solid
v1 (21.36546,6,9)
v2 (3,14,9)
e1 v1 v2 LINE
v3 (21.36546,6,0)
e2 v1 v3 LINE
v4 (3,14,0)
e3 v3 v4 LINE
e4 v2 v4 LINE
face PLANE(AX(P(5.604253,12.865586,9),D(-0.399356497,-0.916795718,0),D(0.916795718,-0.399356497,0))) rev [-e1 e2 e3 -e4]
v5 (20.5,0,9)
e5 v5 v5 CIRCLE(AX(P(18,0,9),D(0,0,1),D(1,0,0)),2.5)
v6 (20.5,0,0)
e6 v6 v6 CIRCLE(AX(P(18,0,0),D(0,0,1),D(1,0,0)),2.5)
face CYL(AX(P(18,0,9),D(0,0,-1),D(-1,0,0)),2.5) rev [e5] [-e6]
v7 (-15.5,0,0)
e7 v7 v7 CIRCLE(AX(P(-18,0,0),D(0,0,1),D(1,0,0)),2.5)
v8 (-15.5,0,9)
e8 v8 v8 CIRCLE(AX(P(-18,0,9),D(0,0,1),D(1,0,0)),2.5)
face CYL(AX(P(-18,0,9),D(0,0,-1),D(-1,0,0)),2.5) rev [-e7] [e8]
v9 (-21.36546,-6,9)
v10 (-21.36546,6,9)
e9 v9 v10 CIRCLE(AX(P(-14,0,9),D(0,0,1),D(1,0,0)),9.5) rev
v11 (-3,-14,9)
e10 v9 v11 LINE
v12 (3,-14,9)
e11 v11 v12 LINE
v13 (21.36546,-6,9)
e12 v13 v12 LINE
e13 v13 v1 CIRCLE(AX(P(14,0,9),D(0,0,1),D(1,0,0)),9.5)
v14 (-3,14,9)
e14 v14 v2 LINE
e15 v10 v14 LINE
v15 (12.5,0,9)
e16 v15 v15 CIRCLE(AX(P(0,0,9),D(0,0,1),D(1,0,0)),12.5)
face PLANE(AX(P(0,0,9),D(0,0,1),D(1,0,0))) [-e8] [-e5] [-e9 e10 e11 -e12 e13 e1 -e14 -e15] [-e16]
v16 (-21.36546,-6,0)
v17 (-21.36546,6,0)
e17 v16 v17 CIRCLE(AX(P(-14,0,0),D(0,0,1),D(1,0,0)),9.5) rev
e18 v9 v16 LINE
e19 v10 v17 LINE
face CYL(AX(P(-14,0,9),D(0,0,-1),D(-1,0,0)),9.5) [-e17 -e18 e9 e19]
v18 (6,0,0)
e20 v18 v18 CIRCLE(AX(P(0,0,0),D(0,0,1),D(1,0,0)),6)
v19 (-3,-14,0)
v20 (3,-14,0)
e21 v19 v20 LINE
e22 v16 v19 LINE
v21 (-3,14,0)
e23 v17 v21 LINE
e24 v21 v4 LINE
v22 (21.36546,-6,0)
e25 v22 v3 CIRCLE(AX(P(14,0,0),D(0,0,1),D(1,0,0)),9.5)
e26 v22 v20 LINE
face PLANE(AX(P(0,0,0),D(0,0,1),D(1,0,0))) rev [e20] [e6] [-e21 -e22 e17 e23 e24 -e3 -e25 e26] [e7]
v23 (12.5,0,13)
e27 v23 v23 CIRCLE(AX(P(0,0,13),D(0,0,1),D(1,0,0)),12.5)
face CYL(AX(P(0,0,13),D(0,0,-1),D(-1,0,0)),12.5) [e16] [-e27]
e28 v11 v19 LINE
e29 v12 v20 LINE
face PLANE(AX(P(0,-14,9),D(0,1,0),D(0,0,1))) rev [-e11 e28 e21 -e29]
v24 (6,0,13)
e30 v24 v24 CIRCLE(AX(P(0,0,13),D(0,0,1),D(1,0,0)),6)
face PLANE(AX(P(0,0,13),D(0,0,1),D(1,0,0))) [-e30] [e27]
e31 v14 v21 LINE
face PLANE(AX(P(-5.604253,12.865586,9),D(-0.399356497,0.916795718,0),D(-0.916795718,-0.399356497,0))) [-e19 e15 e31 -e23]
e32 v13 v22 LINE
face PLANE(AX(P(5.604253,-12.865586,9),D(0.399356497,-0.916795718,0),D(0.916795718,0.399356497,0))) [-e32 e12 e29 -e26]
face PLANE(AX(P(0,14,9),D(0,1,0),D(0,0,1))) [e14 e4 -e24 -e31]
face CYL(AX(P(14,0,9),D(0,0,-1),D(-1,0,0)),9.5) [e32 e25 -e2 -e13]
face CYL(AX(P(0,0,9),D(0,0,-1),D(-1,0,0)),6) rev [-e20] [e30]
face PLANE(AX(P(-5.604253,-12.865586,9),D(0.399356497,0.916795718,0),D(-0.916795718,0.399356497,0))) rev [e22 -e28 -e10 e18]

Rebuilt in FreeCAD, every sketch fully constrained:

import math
import FreeCAD as App
import Part
import Sketcher
from FreeCAD import Vector
Q = App.Units.Quantity

doc = App.newDocument("Part")
body = doc.addObject("PartDesign::Body", "Body")

# Sketch on XY plane
sketch1 = body.newObject("Sketcher::SketchObject", "Sketch")
sketch1.AttachmentSupport = (doc.getObject("XY_Plane"), [""])
sketch1.MapMode = "FlatFace"
sketch1.addGeometry([
    Part.LineSegment(Vector(3, -14, 0), Vector(21.4, -6, 0)),  # 0
    Part.ArcOfCircle(Part.Circle(Vector(14, 0, 0), Vector(0, 0, 1), 9.5), math.radians(-39), math.radians(39)),  # 1
    Part.LineSegment(Vector(21.4, 6, 0), Vector(3, 14, 0)),  # 2
    Part.LineSegment(Vector(3, 14, 0), Vector(-3, 14, 0)),  # 3
    Part.LineSegment(Vector(-3, 14, 0), Vector(-21.4, 6, 0)),  # 4
    Part.ArcOfCircle(Part.Circle(Vector(-14, 0, 0), Vector(0, 0, 1), 9.5), math.radians(141), math.radians(219)),  # 5
    Part.LineSegment(Vector(-21.4, -6, 0), Vector(-3, -14, 0)),  # 6
    Part.LineSegment(Vector(-3, -14, 0), Vector(3, -14, 0)),  # 7
    Part.Circle(Vector(18, 0, 0), Vector(0, 0, 1), 2.5),  # 8
    Part.Circle(Vector(0, 0, 0), Vector(0, 0, 1), 6),  # 9
    Part.Circle(Vector(-18, 0, 0), Vector(0, 0, 1), 2.5),  # 10
], False)
sketch1.addConstraint([
    Sketcher.Constraint("Coincident", 0, 2, 1, 1),
    Sketcher.Constraint("Coincident", 1, 2, 2, 1),
    Sketcher.Constraint("Coincident", 2, 2, 3, 1),
    Sketcher.Constraint("Coincident", 3, 2, 4, 1),
    Sketcher.Constraint("Coincident", 4, 2, 5, 1),
    Sketcher.Constraint("Coincident", 5, 2, 6, 1),
    Sketcher.Constraint("Coincident", 6, 2, 7, 1),
    Sketcher.Constraint("Coincident", 7, 2, 0, 1),
    Sketcher.Constraint("Horizontal", 3),
    Sketcher.Constraint("Horizontal", 7),
    Sketcher.Constraint("Coincident", 9, 3, -1, 1),
    Sketcher.Constraint("Equal", 1, 5),
    Sketcher.Constraint("Equal", 8, 10),
    Sketcher.Constraint("Symmetric", 1, 3, 5, 3, -1, 1),
    Sketcher.Constraint("Symmetric", 8, 3, 10, 3, -1, 1),
    Sketcher.Constraint("Symmetric", 2, 2, 6, 2, -1, 1),
    Sketcher.Constraint("Symmetric", 1, 2, 4, 2, -2),
    Sketcher.Constraint("PointOnObject", 8, 3, -1),
    Sketcher.Constraint("Parallel", 0, 4),
    Sketcher.Constraint("Parallel", 2, 6),
    Sketcher.Constraint("Horizontal", 0, 2, 5, 2),
    Sketcher.Constraint("Vertical", 3, 2, 6, 2),
    Sketcher.Constraint("Diameter", 8, Q("5 mm")),
    Sketcher.Constraint("Diameter", 9, Q("12 mm")),
    Sketcher.Constraint("Radius", 1, Q("9.5 mm")),
    Sketcher.Constraint("DistanceX", 3, 2, 3, 1, Q("6 mm")),
    Sketcher.Constraint("DistanceX", -1, 1, 1, 3, Q("14 mm")),
    Sketcher.Constraint("DistanceX", -1, 1, 8, 3, Q("18 mm")),
    Sketcher.Constraint("DistanceY", 0, 2, -1, 1, Q("6 mm")),
    Sketcher.Constraint("DistanceY", -1, 1, 2, 2, Q("14 mm")),
])
pad1 = body.newObject("PartDesign::Pad", "Pad")
pad1.Profile = sketch1
pad1.Length = 9

# Sketch on XY plane
sketch2 = body.newObject("Sketcher::SketchObject", "Sketch001")
sketch2.AttachmentSupport = (doc.getObject("XY_Plane"), [""])
sketch2.MapMode = "FlatFace"
sketch2.AttachmentOffset = App.Placement(Vector(0, 0, 9), App.Rotation())
sketch2.addGeometry([
    Part.Circle(Vector(0, 0, 0), Vector(0, 0, 1), 12),
    Part.Circle(Vector(0, 0, 0), Vector(0, 0, 1), 6),
], False)
sketch2.addConstraint([
    Sketcher.Constraint("Coincident", 0, 3, -1, 1),
    Sketcher.Constraint("Coincident", 1, 3, -1, 1),
    Sketcher.Constraint("Diameter", 0, Q("25 mm")),
    Sketcher.Constraint("Diameter", 1, Q("12 mm")),
])
pad2 = body.newObject("PartDesign::Pad", "Pad001")
pad2.Profile = sketch2
pad2.Length = 4

doc.recompute()
